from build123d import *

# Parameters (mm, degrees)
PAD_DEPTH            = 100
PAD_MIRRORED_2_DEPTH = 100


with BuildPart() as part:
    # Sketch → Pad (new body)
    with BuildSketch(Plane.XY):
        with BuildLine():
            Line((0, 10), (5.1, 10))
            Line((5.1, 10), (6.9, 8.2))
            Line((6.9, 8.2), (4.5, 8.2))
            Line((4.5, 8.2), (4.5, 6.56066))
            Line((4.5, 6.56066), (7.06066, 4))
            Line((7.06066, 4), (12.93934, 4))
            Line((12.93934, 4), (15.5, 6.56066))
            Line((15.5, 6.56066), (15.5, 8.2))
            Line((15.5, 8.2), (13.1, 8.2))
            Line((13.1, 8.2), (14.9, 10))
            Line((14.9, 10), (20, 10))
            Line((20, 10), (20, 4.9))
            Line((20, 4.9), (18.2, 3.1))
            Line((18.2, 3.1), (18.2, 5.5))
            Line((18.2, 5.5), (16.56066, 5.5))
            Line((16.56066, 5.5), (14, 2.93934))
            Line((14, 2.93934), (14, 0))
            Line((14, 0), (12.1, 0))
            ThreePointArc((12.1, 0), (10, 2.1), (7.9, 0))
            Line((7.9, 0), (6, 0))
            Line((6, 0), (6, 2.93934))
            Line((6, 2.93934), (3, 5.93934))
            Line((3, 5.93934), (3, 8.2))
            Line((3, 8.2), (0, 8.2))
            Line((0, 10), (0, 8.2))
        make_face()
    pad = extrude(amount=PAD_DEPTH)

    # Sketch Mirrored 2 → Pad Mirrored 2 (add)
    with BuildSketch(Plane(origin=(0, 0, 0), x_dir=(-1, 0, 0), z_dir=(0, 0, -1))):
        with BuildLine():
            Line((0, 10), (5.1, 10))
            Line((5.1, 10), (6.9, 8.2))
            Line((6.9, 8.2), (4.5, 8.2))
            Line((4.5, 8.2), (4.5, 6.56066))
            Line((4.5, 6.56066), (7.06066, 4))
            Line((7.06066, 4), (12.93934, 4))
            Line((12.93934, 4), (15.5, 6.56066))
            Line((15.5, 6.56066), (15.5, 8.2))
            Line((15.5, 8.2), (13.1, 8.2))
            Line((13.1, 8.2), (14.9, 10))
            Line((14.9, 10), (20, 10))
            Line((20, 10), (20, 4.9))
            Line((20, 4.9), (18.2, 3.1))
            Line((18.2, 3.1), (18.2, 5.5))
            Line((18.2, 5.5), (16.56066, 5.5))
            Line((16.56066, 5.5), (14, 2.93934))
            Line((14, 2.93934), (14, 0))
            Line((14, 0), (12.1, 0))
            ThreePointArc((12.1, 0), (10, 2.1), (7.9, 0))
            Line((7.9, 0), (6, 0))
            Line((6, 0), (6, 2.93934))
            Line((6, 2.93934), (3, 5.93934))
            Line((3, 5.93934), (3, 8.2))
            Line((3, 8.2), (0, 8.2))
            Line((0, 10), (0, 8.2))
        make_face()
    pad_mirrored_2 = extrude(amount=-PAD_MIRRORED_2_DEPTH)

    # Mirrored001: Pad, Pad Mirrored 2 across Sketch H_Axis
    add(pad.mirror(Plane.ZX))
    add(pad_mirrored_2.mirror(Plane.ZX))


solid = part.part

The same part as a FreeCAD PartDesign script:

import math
import FreeCAD as App
import Part
import Sketcher
Q = App.Units.Quantity

doc = App.newDocument("Part")
body = doc.addObject("PartDesign::Body", "Body")

sketch1 = doc.addObject("Sketcher::SketchObject", "Sketch")
body.addObject(sketch1)
sketch1.AttachmentSupport = (doc.XY_Plane, [""])
sketch1.MapMode = "FlatFace"
sketch1.addGeometry([
    Part.LineSegment(App.Vector(5.1, 10, 0), App.Vector(0, 10, 0)),
    Part.LineSegment(App.Vector(0, 10, 0), App.Vector(0, 8.2, 0)),
    Part.LineSegment(App.Vector(0, 8.2, 0), App.Vector(3, 8.2, 0)),
    Part.LineSegment(App.Vector(3, 8.2, 0), App.Vector(3, 5.9, 0)),
    Part.LineSegment(App.Vector(3, 5.9, 0), App.Vector(6, 2.9, 0)),
    Part.LineSegment(App.Vector(6, 2.9, 0), App.Vector(6, 0, 0)),
    Part.LineSegment(App.Vector(6, 0, 0), App.Vector(7.9, 0, 0)),
    Part.ArcOfCircle(Part.Circle(App.Vector(10, 0, 0), App.Vector(0, 0, 1), 2.1), math.radians(0), math.radians(180)),
    Part.LineSegment(App.Vector(12.1, 0, 0), App.Vector(14, 0, 0)),
    Part.LineSegment(App.Vector(14, 0, 0), App.Vector(14, 2.9, 0)),
    Part.LineSegment(App.Vector(14, 2.9, 0), App.Vector(16.6, 5.5, 0)),
    Part.LineSegment(App.Vector(16.6, 5.5, 0), App.Vector(18.2, 5.5, 0)),
    Part.LineSegment(App.Vector(18.2, 5.5, 0), App.Vector(18.2, 3.1, 0)),
    Part.LineSegment(App.Vector(18.2, 3.1, 0), App.Vector(20, 4.9, 0)),
    Part.LineSegment(App.Vector(20, 4.9, 0), App.Vector(20, 10, 0)),
    Part.LineSegment(App.Vector(20, 10, 0), App.Vector(14.9, 10, 0)),
    Part.LineSegment(App.Vector(14.9, 10, 0), App.Vector(13.1, 8.2, 0)),
    Part.LineSegment(App.Vector(13.1, 8.2, 0), App.Vector(15.5, 8.2, 0)),
    Part.LineSegment(App.Vector(15.5, 8.2, 0), App.Vector(15.5, 6.6, 0)),
    Part.LineSegment(App.Vector(15.5, 6.6, 0), App.Vector(12.9, 4, 0)),
    Part.LineSegment(App.Vector(12.9, 4, 0), App.Vector(7.1, 4, 0)),
    Part.LineSegment(App.Vector(7.1, 4, 0), App.Vector(4.5, 6.6, 0)),
    Part.LineSegment(App.Vector(4.5, 6.6, 0), App.Vector(4.5, 8.2, 0)),
    Part.LineSegment(App.Vector(4.5, 8.2, 0), App.Vector(6.9, 8.2, 0)),
    Part.LineSegment(App.Vector(6.9, 8.2, 0), App.Vector(5.1, 10, 0)),
], False)
sketch1.addConstraint([
    Sketcher.Constraint("Coincident", 0, 2, 1, 1),
    Sketcher.Constraint("Coincident", 1, 2, 2, 1),
    Sketcher.Constraint("Coincident", 2, 2, 3, 1),
    Sketcher.Constraint("Coincident", 3, 2, 4, 1),
    Sketcher.Constraint("Coincident", 4, 2, 5, 1),
    Sketcher.Constraint("Coincident", 5, 2, 6, 1),
    Sketcher.Constraint("Coincident", 6, 2, 7, 2),
    Sketcher.Constraint("Coincident", 7, 1, 8, 1),
    Sketcher.Constraint("Coincident", 8, 2, 9, 1),
    Sketcher.Constraint("Coincident", 9, 2, 10, 1),
    Sketcher.Constraint("Coincident", 10, 2, 11, 1),
    Sketcher.Constraint("Coincident", 11, 2, 12, 1),
    Sketcher.Constraint("Coincident", 12, 2, 13, 1),
    Sketcher.Constraint("Coincident", 13, 2, 14, 1),
    Sketcher.Constraint("Coincident", 14, 2, 15, 1),
    Sketcher.Constraint("Coincident", 15, 2, 16, 1),
    Sketcher.Constraint("Coincident", 16, 2, 17, 1),
    Sketcher.Constraint("Coincident", 17, 2, 18, 1),
    Sketcher.Constraint("Coincident", 18, 2, 19, 1),
    Sketcher.Constraint("Coincident", 19, 2, 20, 1),
    Sketcher.Constraint("Coincident", 20, 2, 21, 1),
    Sketcher.Constraint("Coincident", 21, 2, 22, 1),
    Sketcher.Constraint("Coincident", 22, 2, 23, 1),
    Sketcher.Constraint("Coincident", 23, 2, 24, 1),
    Sketcher.Constraint("Coincident", 24, 2, 0, 1),
    Sketcher.Constraint("Horizontal", 0),
    Sketcher.Constraint("Vertical", 1),
    Sketcher.Constraint("Horizontal", 2),
    Sketcher.Constraint("Vertical", 3),
    Sketcher.Constraint("Vertical", 5),
    Sketcher.Constraint("Horizontal", 6),
    Sketcher.Constraint("Horizontal", 8),
    Sketcher.Constraint("Vertical", 9),
    Sketcher.Constraint("Horizontal", 11),
    Sketcher.Constraint("Vertical", 12),
    Sketcher.Constraint("Vertical", 14),
    Sketcher.Constraint("Horizontal", 15),
    Sketcher.Constraint("Horizontal", 17),
    Sketcher.Constraint("Vertical", 18),
    Sketcher.Constraint("Horizontal", 20),
    Sketcher.Constraint("Vertical", 22),
    Sketcher.Constraint("Horizontal", 23),
    Sketcher.Constraint("PointOnObject", 7, 3, -1),
    Sketcher.Constraint("PointOnObject", 0, 2, -2),
    Sketcher.Constraint("PointOnObject", 5, 2, -1),
    Sketcher.Constraint("PointOnObject", 7, 1, -1),
    Sketcher.Constraint("Perpendicular", 4, 10),
    Sketcher.Constraint("Parallel", 10, 13),
    Sketcher.Constraint("Parallel", 13, 16),
    Sketcher.Constraint("Parallel", 16, 19),
    Sketcher.Constraint("Perpendicular", 19, 21),
    Sketcher.Constraint("Parallel", 21, 24),
    Sketcher.Constraint("Horizontal", 4, 2, 9, 2),
    Sketcher.Constraint("Horizontal", 0, 2, 14, 2),
    Sketcher.Constraint("Horizontal", 2, 2, 16, 2),
    Sketcher.Constraint("Horizontal", 18, 2, 21, 2),
    Sketcher.Constraint("Horizontal", 17, 2, 22, 2),
    Sketcher.Constraint("Equal", 6, 8),
    Sketcher.Constraint("Equal", 0, 15),
    Sketcher.Constraint("Equal", 17, 23),
    Sketcher.Constraint("Equal", 23, 12),
    Sketcher.Constraint("Equal", 15, 14),
    Sketcher.Constraint("Equal", 11, 18),
    Sketcher.Constraint("Equal", 13, 16),
    Sketcher.Constraint("Equal", 10, 19),
    Sketcher.Constraint("Equal", 19, 21),
    Sketcher.Constraint("Radius", 7, Q("2.1 mm")),
    Sketcher.Constraint("DistanceX", 2, 1, 2, 2, Q("3 mm")),
    Sketcher.Constraint("DistanceX", 0, 2, 0, 1, Q("5.1 mm")),
    Sketcher.Constraint("DistanceX", 6, 1, 6, 2, Q("1.9 mm")),
    Sketcher.Constraint("DistanceX", 17, 1, 17, 2, Q("2.4 mm")),
    Sketcher.Constraint("DistanceY", 1, 2, 1, 1, Q("1.8 mm")),
    Sketcher.Constraint("DistanceX", -1, 1, 7, 3, Q("10 mm")),
    Sketcher.Constraint("DistanceY", -1, 1, 0, 2, Q("10 mm")),
    Sketcher.Constraint("DistanceX", -1, 1, 13, 2, Q("20 mm")),
    Sketcher.Constraint("DistanceX", 11, 1, 11, 2, Q("1.63934 mm")),
])
pad1 = doc.addObject("PartDesign::Pad", "Pad")
body.addObject(pad1)
pad1.Profile = sketch1
pad1.Length = 100

sketch2 = doc.addObject("Sketcher::SketchObject", "Sketch001")
body.addObject(sketch2)
sketch2.AttachmentSupport = (doc.XY_Plane, [""])
sketch2.MapMode = "FlatFace"
sketch2.addGeometry([
    Part.LineSegment(App.Vector(-5.1, 10, 0), App.Vector(0, 10, 0)),
    Part.LineSegment(App.Vector(0, 10, 0), App.Vector(0, 8.2, 0)),
    Part.LineSegment(App.Vector(0, 8.2, 0), App.Vector(-3, 8.2, 0)),
    Part.LineSegment(App.Vector(-3, 8.2, 0), App.Vector(-3, 5.9, 0)),
    Part.LineSegment(App.Vector(-3, 5.9, 0), App.Vector(-6, 2.9, 0)),
    Part.LineSegment(App.Vector(-6, 2.9, 0), App.Vector(-6, 0, 0)),
    Part.LineSegment(App.Vector(-6, 0, 0), App.Vector(-7.9, 0, 0)),
    Part.ArcOfCircle(Part.Circle(App.Vector(-10, 0, 0), App.Vector(0, 0, 1), 2.1), math.radians(0), math.radians(180)),
    Part.LineSegment(App.Vector(-12.1, 0, 0), App.Vector(-14, 0, 0)),
    Part.LineSegment(App.Vector(-14, 0, 0), App.Vector(-14, 2.9, 0)),
    Part.LineSegment(App.Vector(-14, 2.9, 0), App.Vector(-16.6, 5.5, 0)),
    Part.LineSegment(App.Vector(-16.6, 5.5, 0), App.Vector(-18.2, 5.5, 0)),
    Part.LineSegment(App.Vector(-18.2, 5.5, 0), App.Vector(-18.2, 3.1, 0)),
    Part.LineSegment(App.Vector(-18.2, 3.1, 0), App.Vector(-20, 4.9, 0)),
    Part.LineSegment(App.Vector(-20, 4.9, 0), App.Vector(-20, 10, 0)),
    Part.LineSegment(App.Vector(-20, 10, 0), App.Vector(-14.9, 10, 0)),
    Part.LineSegment(App.Vector(-14.9, 10, 0), App.Vector(-13.1, 8.2, 0)),
    Part.LineSegment(App.Vector(-13.1, 8.2, 0), App.Vector(-15.5, 8.2, 0)),
    Part.LineSegment(App.Vector(-15.5, 8.2, 0), App.Vector(-15.5, 6.6, 0)),
    Part.LineSegment(App.Vector(-15.5, 6.6, 0), App.Vector(-12.9, 4, 0)),
    Part.LineSegment(App.Vector(-12.9, 4, 0), App.Vector(-7.1, 4, 0)),
    Part.LineSegment(App.Vector(-7.1, 4, 0), App.Vector(-4.5, 6.6, 0)),
    Part.LineSegment(App.Vector(-4.5, 6.6, 0), App.Vector(-4.5, 8.2, 0)),
    Part.LineSegment(App.Vector(-4.5, 8.2, 0), App.Vector(-6.9, 8.2, 0)),
    Part.LineSegment(App.Vector(-6.9, 8.2, 0), App.Vector(-5.1, 10, 0)),
], False)
sketch2.addConstraint([
    Sketcher.Constraint("Coincident", 0, 2, 1, 1),
    Sketcher.Constraint("Coincident", 1, 2, 2, 1),
    Sketcher.Constraint("Coincident", 2, 2, 3, 1),
    Sketcher.Constraint("Coincident", 3, 2, 4, 1),
    Sketcher.Constraint("Coincident", 4, 2, 5, 1),
    Sketcher.Constraint("Coincident", 5, 2, 6, 1),
    Sketcher.Constraint("Coincident", 6, 2, 7, 1),
    Sketcher.Constraint("Coincident", 7, 2, 8, 1),
    Sketcher.Constraint("Coincident", 8, 2, 9, 1),
    Sketcher.Constraint("Coincident", 9, 2, 10, 1),
    Sketcher.Constraint("Coincident", 10, 2, 11, 1),
    Sketcher.Constraint("Coincident", 11, 2, 12, 1),
    Sketcher.Constraint("Coincident", 12, 2, 13, 1),
    Sketcher.Constraint("Coincident", 13, 2, 14, 1),
    Sketcher.Constraint("Coincident", 14, 2, 15, 1),
    Sketcher.Constraint("Coincident", 15, 2, 16, 1),
    Sketcher.Constraint("Coincident", 16, 2, 17, 1),
    Sketcher.Constraint("Coincident", 17, 2, 18, 1),
    Sketcher.Constraint("Coincident", 18, 2, 19, 1),
    Sketcher.Constraint("Coincident", 19, 2, 20, 1),
    Sketcher.Constraint("Coincident", 20, 2, 21, 1),
    Sketcher.Constraint("Coincident", 21, 2, 22, 1),
    Sketcher.Constraint("Coincident", 22, 2, 23, 1),
    Sketcher.Constraint("Coincident", 23, 2, 24, 1),
    Sketcher.Constraint("Coincident", 24, 2, 0, 1),
    Sketcher.Constraint("Horizontal", 0),
    Sketcher.Constraint("Vertical", 1),
    Sketcher.Constraint("Horizontal", 2),
    Sketcher.Constraint("Vertical", 3),
    Sketcher.Constraint("Vertical", 5),
    Sketcher.Constraint("Horizontal", 6),
    Sketcher.Constraint("Horizontal", 8),
    Sketcher.Constraint("Vertical", 9),
    Sketcher.Constraint("Horizontal", 11),
    Sketcher.Constraint("Vertical", 12),
    Sketcher.Constraint("Vertical", 14),
    Sketcher.Constraint("Horizontal", 15),
    Sketcher.Constraint("Horizontal", 17),
    Sketcher.Constraint("Vertical", 18),
    Sketcher.Constraint("Horizontal", 20),
    Sketcher.Constraint("Vertical", 22),
    Sketcher.Constraint("Horizontal", 23),
    Sketcher.Constraint("PointOnObject", 7, 3, -1),
    Sketcher.Constraint("PointOnObject", 0, 2, -2),
    Sketcher.Constraint("PointOnObject", 5, 2, -1),
    Sketcher.Constraint("PointOnObject", 7, 2, -1),
    Sketcher.Constraint("Perpendicular", 4, 10),
    Sketcher.Constraint("Parallel", 10, 13),
    Sketcher.Constraint("Parallel", 13, 16),
    Sketcher.Constraint("Parallel", 16, 19),
    Sketcher.Constraint("Perpendicular", 19, 21),
    Sketcher.Constraint("Parallel", 21, 24),
    Sketcher.Constraint("Horizontal", 4, 2, 9, 2),
    Sketcher.Constraint("Horizontal", 0, 2, 14, 2),
    Sketcher.Constraint("Horizontal", 2, 2, 16, 2),
    Sketcher.Constraint("Horizontal", 18, 2, 21, 2),
    Sketcher.Constraint("Horizontal", 17, 2, 22, 2),
    Sketcher.Constraint("Equal", 6, 8),
    Sketcher.Constraint("Equal", 0, 15),
    Sketcher.Constraint("Equal", 17, 23),
    Sketcher.Constraint("Equal", 23, 12),
    Sketcher.Constraint("Equal", 15, 14),
    Sketcher.Constraint("Equal", 11, 18),
    Sketcher.Constraint("Equal", 13, 16),
    Sketcher.Constraint("Equal", 10, 19),
    Sketcher.Constraint("Equal", 19, 21),
    Sketcher.Constraint("Radius", 7, Q("2.1 mm")),
    Sketcher.Constraint("DistanceX", 2, 2, 2, 1, Q("3 mm")),
    Sketcher.Constraint("DistanceX", 0, 1, 0, 2, Q("5.1 mm")),
    Sketcher.Constraint("DistanceX", 6, 2, 6, 1, Q("1.9 mm")),
    Sketcher.Constraint("DistanceX", 17, 2, 17, 1, Q("2.4 mm")),
    Sketcher.Constraint("DistanceY", 1, 2, 1, 1, Q("1.8 mm")),
    Sketcher.Constraint("DistanceX", 7, 3, -1, 1, Q("10 mm")),
    Sketcher.Constraint("DistanceY", -1, 1, 0, 2, Q("10 mm")),
    Sketcher.Constraint("DistanceX", 13, 2, -1, 1, Q("20 mm")),
    Sketcher.Constraint("DistanceX", 11, 2, 11, 1, Q("1.63934 mm")),
])
pad2 = doc.addObject("PartDesign::Pad", "Pad001")
body.addObject(pad2)
pad2.Profile = sketch2
pad2.Length = 100
doc.recompute()

mirrored = doc.addObject("PartDesign::Mirrored", "Mirrored")
body.addObject(mirrored)
mirrored.Originals = [pad1, pad2]
mirrored.MirrorPlane = (doc.XZ_Plane, [""])
body.Tip = mirrored

doc.recompute()
